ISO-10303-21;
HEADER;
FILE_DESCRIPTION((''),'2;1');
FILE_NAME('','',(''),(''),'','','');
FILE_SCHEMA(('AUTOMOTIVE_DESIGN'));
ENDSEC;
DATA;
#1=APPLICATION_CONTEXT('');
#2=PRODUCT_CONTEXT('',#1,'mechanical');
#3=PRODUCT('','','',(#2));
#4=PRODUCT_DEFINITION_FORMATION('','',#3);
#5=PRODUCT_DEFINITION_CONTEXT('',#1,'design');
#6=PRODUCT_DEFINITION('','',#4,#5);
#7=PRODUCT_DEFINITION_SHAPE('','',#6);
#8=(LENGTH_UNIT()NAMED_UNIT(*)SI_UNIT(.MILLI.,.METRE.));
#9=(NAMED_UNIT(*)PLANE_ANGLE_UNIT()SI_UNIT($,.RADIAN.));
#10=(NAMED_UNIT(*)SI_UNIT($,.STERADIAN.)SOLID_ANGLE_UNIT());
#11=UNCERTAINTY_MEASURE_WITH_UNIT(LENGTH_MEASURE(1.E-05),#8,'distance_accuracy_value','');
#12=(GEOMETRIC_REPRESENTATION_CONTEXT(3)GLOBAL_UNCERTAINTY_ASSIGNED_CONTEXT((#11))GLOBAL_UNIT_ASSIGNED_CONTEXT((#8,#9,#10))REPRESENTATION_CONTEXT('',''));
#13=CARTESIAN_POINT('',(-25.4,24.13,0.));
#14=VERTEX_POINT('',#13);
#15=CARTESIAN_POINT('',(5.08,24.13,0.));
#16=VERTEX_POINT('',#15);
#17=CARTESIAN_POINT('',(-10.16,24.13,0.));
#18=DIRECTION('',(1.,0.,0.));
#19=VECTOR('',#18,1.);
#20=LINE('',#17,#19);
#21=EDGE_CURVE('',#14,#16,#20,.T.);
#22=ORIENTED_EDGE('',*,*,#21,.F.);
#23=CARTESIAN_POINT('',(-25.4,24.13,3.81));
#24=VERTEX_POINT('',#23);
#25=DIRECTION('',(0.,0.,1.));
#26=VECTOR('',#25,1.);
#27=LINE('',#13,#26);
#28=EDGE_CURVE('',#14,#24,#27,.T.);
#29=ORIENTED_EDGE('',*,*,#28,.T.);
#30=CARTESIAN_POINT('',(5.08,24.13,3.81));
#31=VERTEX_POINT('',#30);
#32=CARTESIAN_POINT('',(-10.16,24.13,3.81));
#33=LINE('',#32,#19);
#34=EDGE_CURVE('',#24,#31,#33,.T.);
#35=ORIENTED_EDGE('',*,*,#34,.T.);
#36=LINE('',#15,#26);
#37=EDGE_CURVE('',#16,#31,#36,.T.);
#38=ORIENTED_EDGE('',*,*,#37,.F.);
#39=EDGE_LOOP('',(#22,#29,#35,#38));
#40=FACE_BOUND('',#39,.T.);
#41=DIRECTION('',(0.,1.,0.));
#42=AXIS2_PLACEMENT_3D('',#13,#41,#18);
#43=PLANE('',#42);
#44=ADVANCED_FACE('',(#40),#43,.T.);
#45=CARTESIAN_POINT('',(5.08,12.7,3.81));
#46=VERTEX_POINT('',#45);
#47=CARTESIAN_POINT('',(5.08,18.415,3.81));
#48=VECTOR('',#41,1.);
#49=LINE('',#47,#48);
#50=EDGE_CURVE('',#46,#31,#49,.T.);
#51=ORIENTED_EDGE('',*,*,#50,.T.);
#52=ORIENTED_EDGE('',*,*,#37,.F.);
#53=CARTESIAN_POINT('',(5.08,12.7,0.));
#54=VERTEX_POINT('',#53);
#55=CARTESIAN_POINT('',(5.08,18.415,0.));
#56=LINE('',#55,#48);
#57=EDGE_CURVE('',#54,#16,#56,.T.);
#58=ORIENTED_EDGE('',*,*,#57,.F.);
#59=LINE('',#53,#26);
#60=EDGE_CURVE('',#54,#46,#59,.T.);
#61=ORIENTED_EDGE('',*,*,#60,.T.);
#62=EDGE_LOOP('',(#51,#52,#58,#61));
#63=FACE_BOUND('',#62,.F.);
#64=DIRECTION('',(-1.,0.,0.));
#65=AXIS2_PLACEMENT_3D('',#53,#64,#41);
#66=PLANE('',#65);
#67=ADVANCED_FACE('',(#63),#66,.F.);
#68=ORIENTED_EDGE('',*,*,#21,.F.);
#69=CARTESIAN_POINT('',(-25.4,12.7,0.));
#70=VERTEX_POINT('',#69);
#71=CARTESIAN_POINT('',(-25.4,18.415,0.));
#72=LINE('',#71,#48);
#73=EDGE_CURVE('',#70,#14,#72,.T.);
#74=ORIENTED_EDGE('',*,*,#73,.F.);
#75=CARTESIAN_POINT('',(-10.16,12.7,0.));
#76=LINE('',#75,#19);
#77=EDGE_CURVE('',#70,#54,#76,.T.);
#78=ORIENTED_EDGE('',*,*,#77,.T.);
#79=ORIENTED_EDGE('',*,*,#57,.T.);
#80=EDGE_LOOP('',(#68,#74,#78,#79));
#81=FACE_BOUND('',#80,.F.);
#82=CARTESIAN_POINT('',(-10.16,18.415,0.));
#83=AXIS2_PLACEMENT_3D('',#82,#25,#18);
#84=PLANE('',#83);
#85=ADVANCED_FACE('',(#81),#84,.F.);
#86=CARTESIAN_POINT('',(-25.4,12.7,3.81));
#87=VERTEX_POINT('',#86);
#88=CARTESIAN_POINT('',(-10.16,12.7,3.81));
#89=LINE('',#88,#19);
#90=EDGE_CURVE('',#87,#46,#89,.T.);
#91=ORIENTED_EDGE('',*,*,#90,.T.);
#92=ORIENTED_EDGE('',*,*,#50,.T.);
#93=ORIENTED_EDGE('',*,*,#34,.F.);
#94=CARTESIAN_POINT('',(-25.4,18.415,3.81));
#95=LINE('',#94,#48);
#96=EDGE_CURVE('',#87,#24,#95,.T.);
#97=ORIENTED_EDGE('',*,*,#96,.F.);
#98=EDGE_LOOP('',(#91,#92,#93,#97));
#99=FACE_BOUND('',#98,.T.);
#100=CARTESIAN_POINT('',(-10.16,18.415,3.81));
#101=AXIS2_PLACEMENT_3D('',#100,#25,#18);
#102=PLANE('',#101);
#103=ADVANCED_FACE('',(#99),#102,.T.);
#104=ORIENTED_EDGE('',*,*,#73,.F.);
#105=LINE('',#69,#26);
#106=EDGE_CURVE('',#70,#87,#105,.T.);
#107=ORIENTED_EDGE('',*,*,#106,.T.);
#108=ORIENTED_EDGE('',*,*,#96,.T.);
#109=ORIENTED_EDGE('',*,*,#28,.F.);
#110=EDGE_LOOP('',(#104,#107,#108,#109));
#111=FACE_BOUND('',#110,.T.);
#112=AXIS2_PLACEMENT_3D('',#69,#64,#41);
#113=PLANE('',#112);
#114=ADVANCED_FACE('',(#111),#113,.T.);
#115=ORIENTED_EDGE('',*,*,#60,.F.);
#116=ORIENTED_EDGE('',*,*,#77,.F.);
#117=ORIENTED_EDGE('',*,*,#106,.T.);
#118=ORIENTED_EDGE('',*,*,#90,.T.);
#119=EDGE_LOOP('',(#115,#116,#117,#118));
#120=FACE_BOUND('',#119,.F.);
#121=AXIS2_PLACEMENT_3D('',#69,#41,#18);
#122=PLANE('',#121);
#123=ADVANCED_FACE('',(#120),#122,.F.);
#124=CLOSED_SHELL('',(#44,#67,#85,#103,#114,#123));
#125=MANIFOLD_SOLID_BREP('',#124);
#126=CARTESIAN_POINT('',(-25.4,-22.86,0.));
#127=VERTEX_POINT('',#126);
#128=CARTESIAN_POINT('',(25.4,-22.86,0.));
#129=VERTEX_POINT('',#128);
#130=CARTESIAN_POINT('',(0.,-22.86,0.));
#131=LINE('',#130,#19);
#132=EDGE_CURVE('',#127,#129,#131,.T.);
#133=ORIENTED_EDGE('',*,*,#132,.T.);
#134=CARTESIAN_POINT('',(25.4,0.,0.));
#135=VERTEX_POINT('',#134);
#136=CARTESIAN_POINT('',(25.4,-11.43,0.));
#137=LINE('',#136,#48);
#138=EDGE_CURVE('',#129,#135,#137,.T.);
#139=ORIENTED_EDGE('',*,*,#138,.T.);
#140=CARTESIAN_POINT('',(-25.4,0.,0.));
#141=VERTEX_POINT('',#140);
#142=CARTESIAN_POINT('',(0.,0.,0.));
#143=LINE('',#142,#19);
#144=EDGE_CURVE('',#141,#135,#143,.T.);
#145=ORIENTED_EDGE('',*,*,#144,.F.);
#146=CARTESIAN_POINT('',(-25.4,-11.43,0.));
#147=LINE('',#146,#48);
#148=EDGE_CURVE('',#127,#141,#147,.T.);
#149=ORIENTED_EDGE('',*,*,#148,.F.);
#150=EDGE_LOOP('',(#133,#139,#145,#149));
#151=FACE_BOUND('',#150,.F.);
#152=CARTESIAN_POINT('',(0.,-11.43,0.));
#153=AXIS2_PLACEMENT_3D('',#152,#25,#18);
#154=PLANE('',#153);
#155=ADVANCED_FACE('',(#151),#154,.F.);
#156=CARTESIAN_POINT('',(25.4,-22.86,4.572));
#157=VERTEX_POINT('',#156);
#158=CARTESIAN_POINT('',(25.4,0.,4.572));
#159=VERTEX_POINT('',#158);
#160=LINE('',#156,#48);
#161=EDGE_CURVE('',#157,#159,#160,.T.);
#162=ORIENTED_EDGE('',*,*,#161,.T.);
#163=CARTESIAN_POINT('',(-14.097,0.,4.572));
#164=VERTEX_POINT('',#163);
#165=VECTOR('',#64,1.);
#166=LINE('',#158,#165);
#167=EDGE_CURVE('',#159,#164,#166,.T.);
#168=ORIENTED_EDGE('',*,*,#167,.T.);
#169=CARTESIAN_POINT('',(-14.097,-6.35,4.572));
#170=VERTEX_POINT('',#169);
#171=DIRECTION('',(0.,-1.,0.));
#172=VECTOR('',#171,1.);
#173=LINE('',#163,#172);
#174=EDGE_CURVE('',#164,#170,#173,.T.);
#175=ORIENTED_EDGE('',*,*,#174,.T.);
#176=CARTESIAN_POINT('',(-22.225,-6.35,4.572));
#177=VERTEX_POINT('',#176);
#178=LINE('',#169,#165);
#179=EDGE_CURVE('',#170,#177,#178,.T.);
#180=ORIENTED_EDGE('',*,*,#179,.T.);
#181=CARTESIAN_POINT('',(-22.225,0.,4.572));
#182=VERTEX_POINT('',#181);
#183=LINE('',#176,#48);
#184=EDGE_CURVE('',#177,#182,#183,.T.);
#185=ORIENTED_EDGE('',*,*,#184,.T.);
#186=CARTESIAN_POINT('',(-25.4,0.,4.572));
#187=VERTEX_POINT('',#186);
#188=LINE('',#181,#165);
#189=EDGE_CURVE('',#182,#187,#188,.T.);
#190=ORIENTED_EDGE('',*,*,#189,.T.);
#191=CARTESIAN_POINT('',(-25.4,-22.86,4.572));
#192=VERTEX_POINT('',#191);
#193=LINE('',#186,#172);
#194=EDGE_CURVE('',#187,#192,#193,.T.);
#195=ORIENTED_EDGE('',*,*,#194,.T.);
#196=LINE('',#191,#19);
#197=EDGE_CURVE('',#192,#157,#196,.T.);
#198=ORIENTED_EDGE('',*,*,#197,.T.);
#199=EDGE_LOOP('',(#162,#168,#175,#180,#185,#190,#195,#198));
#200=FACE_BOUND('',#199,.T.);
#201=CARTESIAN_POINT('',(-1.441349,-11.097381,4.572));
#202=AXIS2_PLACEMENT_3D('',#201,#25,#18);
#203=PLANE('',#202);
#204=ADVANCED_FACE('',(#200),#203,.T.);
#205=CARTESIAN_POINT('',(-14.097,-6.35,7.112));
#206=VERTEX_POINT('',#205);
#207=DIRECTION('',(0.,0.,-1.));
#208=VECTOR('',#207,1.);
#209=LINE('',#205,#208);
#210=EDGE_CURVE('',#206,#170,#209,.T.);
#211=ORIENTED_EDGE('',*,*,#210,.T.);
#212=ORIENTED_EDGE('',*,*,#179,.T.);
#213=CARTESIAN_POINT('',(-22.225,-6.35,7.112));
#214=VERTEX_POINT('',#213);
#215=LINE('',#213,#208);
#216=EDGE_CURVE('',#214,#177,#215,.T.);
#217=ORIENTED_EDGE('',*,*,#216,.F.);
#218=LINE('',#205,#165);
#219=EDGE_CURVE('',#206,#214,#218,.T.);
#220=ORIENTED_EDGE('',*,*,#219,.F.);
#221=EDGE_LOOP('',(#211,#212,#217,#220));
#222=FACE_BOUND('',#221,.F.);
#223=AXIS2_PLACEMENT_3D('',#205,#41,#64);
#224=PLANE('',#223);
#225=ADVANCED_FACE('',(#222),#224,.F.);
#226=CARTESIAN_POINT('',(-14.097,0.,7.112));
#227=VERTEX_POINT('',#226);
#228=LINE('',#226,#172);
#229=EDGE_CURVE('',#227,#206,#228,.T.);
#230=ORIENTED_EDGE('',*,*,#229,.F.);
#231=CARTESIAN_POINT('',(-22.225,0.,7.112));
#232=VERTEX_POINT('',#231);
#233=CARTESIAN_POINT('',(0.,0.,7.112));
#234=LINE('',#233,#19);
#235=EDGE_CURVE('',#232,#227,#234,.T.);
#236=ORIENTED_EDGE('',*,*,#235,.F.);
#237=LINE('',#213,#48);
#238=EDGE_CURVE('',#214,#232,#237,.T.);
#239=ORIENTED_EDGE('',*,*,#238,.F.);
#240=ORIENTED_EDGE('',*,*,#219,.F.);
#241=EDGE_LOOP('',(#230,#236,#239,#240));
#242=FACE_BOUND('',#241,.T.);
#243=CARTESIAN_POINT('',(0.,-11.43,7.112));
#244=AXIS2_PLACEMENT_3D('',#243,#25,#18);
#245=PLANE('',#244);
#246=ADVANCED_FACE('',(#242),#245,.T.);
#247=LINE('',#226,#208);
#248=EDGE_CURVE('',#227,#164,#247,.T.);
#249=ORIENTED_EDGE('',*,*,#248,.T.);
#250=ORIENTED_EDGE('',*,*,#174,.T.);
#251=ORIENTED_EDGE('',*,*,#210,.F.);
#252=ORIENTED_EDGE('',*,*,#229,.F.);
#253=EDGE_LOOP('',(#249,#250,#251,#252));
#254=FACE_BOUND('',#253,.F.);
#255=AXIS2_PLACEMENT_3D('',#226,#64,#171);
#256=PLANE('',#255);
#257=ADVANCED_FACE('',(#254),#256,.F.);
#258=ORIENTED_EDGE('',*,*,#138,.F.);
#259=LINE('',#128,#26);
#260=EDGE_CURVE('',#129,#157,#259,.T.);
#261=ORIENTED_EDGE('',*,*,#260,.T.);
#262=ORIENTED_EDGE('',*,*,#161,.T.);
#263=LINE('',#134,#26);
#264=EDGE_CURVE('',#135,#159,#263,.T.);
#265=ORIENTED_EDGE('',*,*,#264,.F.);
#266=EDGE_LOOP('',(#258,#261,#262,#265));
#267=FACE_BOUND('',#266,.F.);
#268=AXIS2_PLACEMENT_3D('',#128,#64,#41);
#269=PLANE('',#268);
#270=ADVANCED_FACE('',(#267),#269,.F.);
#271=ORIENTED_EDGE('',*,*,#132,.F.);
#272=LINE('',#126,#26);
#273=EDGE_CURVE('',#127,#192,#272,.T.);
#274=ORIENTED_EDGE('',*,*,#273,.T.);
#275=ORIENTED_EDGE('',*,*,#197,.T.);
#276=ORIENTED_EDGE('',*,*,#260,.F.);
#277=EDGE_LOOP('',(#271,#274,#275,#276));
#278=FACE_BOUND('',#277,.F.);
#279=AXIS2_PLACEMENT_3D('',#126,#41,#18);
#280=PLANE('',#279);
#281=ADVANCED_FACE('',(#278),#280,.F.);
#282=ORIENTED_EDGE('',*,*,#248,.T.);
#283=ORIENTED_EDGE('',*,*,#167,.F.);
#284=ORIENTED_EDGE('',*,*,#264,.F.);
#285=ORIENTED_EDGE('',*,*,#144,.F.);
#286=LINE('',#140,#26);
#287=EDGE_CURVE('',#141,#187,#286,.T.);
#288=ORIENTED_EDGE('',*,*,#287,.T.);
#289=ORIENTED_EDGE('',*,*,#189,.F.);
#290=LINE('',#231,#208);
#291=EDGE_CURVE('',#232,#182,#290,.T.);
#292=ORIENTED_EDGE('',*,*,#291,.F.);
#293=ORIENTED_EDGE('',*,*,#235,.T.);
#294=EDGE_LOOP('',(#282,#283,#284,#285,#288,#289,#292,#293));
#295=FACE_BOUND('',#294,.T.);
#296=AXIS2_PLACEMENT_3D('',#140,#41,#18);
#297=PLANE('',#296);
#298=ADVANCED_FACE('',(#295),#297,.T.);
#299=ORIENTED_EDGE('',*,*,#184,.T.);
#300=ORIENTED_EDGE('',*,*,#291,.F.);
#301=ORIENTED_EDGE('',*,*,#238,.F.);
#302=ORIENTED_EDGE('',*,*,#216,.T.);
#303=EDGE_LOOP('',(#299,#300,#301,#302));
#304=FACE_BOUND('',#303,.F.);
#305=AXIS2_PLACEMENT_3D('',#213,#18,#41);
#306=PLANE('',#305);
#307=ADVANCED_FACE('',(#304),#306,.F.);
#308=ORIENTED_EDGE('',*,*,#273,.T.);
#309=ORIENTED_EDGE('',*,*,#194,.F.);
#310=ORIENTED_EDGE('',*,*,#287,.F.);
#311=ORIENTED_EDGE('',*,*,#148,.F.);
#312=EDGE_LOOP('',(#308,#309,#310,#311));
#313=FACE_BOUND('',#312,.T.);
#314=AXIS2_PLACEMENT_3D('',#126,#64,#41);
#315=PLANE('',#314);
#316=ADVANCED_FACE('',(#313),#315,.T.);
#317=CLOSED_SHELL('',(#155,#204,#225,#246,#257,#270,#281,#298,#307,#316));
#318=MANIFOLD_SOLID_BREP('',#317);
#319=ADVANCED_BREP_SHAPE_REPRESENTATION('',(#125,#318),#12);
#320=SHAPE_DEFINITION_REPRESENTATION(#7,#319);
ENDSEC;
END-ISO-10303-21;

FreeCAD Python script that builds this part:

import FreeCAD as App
import Part
import Sketcher
from FreeCAD import Vector
Q = App.Units.Quantity

doc = App.newDocument("Part")
body = doc.addObject("PartDesign::Body", "Body")

sketch1 = doc.addObject("Sketcher::SketchObject", "Sketch")
body.addObject(sketch1)
sketch1.AttachmentSupport = (doc.XY_Plane, [""])
sketch1.MapMode = "FlatFace"
sketch1.addGeometry([
    Part.LineSegment(Vector(-25, 0, 0), Vector(-25, -23, 0)),
    Part.LineSegment(Vector(-25, -23, 0), Vector(25, -23, 0)),
    Part.LineSegment(Vector(25, -23, 0), Vector(25, 0, 0)),
    Part.LineSegment(Vector(25, 0, 0), Vector(-25, 0, 0)),
], False)
sketch1.addConstraint([
    Sketcher.Constraint("Coincident", 0, 2, 1, 1),
    Sketcher.Constraint("Coincident", 1, 2, 2, 1),
    Sketcher.Constraint("Coincident", 2, 2, 3, 1),
    Sketcher.Constraint("Coincident", 3, 2, 0, 1),
    Sketcher.Constraint("Vertical", 0),
    Sketcher.Constraint("Horizontal", 1),
    Sketcher.Constraint("Vertical", 2),
    Sketcher.Constraint("Horizontal", 3),
    Sketcher.Constraint("Symmetric", 2, 2, 3, 2, -1, 1),
    Sketcher.Constraint("DistanceX", 1, 1, 1, 2, Q("2 in")),
    Sketcher.Constraint("DistanceY", 0, 2, 0, 1, Q("0.9 in")),
])
pad1 = doc.addObject("PartDesign::Pad", "Pad")
body.addObject(pad1)
pad1.Profile = sketch1
pad1.Length = Q("0.28 in")

sketch2 = doc.addObject("Sketcher::SketchObject", "Sketch001")
body.addObject(sketch2)
sketch2.AttachmentSupport = (doc.XY_Plane, [""])
sketch2.MapMode = "FlatFace"
sketch2.AttachmentOffset = App.Placement(Vector(0, 0, 0.28 * 25.4), App.Rotation())
sketch2.addGeometry([
    Part.LineSegment(Vector(-22.2, -6.3, 0), Vector(-22.2, 0, 0)),
    Part.LineSegment(Vector(-22.2, 0, 0), Vector(-25.4, 0, 0)),
    Part.LineSegment(Vector(-25.4, 0, 0), Vector(-25.4, -22.9, 0)),
    Part.LineSegment(Vector(-25.4, -22.9, 0), Vector(25.4, -22.9, 0)),
    Part.LineSegment(Vector(25.4, -22.9, 0), Vector(25.4, 0, 0)),
    Part.LineSegment(Vector(25.4, 0, 0), Vector(-14.1, 0, 0)),
    Part.LineSegment(Vector(-14.1, 0, 0), Vector(-14.1, -6.3, 0)),
    Part.LineSegment(Vector(-14.1, -6.3, 0), Vector(-22.2, -6.3, 0)),
], False)
sketch2.addConstraint([
    Sketcher.Constraint("Coincident", 0, 2, 1, 1),
    Sketcher.Constraint("Coincident", 1, 2, 2, 1),
    Sketcher.Constraint("Coincident", 2, 2, 3, 1),
    Sketcher.Constraint("Coincident", 3, 2, 4, 1),
    Sketcher.Constraint("Coincident", 4, 2, 5, 1),
    Sketcher.Constraint("Coincident", 5, 2, 6, 1),
    Sketcher.Constraint("Coincident", 6, 2, 7, 1),
    Sketcher.Constraint("Coincident", 7, 2, 0, 1),
    Sketcher.Constraint("Vertical", 0),
    Sketcher.Constraint("Horizontal", 1),
    Sketcher.Constraint("Vertical", 2),
    Sketcher.Constraint("Horizontal", 3),
    Sketcher.Constraint("Vertical", 4),
    Sketcher.Constraint("Horizontal", 5),
    Sketcher.Constraint("Vertical", 6),
    Sketcher.Constraint("Horizontal", 7),
    Sketcher.Constraint("Symmetric", 1, 2, 4, 2, -1, 1),
    Sketcher.Constraint("PointOnObject", 0, 2, -1),
    Sketcher.Constraint("DistanceX", 3, 1, 3, 2, Q("2 in")),
    Sketcher.Constraint("DistanceY", 2, 2, 2, 1, Q("0.9 in")),
    Sketcher.Constraint("DistanceX", 7, 2, 7, 1, Q("0.32 in")),
    Sketcher.Constraint("DistanceY", 0, 1, 0, 2, Q("0.25 in")),
    Sketcher.Constraint("DistanceX", 1, 2, 1, 1, Q("0.125 in")),
])
pocket1 = doc.addObject("PartDesign::Pocket", "Pocket")
body.addObject(pocket1)
pocket1.Profile = sketch2
pocket1.Length = Q("0.1 in")
body2 = doc.addObject("PartDesign::Body", "Body001")

sketch3 = doc.addObject("Sketcher::SketchObject", "Sketch002")
body2.addObject(sketch3)
sketch3.AttachmentSupport = (doc.getObject("XY_Plane001"), [""])
sketch3.MapMode = "FlatFace"
sketch3.addGeometry([
    Part.LineSegment(Vector(-25, 24, 0), Vector(-25, 13, 0)),
    Part.LineSegment(Vector(-25, 13, 0), Vector(5, 13, 0)),
    Part.LineSegment(Vector(5, 13, 0), Vector(5, 24, 0)),
    Part.LineSegment(Vector(5, 24, 0), Vector(-25, 24, 0)),
], False)
sketch3.addConstraint([
    Sketcher.Constraint("Coincident", 0, 2, 1, 1),
    Sketcher.Constraint("Coincident", 1, 2, 2, 1),
    Sketcher.Constraint("Coincident", 2, 2, 3, 1),
    Sketcher.Constraint("Coincident", 3, 2, 0, 1),
    Sketcher.Constraint("Vertical", 0),
    Sketcher.Constraint("Horizontal", 1),
    Sketcher.Constraint("Vertical", 2),
    Sketcher.Constraint("Horizontal", 3),
    Sketcher.Constraint("DistanceX", 1, 1, 1, 2, Q("1.2 in")),
    Sketcher.Constraint("DistanceX", 0, 2, -1, 1, Q("1 in")),
    Sketcher.Constraint("DistanceY", 0, 2, 0, 1, Q("0.45 in")),
    Sketcher.Constraint("DistanceY", -1, 1, 0, 2, Q("0.5 in")),
])
pad2 = doc.addObject("PartDesign::Pad", "Pad001")
body2.addObject(pad2)
pad2.Profile = sketch3
pad2.Length = Q("0.15 in")

doc.recompute()
